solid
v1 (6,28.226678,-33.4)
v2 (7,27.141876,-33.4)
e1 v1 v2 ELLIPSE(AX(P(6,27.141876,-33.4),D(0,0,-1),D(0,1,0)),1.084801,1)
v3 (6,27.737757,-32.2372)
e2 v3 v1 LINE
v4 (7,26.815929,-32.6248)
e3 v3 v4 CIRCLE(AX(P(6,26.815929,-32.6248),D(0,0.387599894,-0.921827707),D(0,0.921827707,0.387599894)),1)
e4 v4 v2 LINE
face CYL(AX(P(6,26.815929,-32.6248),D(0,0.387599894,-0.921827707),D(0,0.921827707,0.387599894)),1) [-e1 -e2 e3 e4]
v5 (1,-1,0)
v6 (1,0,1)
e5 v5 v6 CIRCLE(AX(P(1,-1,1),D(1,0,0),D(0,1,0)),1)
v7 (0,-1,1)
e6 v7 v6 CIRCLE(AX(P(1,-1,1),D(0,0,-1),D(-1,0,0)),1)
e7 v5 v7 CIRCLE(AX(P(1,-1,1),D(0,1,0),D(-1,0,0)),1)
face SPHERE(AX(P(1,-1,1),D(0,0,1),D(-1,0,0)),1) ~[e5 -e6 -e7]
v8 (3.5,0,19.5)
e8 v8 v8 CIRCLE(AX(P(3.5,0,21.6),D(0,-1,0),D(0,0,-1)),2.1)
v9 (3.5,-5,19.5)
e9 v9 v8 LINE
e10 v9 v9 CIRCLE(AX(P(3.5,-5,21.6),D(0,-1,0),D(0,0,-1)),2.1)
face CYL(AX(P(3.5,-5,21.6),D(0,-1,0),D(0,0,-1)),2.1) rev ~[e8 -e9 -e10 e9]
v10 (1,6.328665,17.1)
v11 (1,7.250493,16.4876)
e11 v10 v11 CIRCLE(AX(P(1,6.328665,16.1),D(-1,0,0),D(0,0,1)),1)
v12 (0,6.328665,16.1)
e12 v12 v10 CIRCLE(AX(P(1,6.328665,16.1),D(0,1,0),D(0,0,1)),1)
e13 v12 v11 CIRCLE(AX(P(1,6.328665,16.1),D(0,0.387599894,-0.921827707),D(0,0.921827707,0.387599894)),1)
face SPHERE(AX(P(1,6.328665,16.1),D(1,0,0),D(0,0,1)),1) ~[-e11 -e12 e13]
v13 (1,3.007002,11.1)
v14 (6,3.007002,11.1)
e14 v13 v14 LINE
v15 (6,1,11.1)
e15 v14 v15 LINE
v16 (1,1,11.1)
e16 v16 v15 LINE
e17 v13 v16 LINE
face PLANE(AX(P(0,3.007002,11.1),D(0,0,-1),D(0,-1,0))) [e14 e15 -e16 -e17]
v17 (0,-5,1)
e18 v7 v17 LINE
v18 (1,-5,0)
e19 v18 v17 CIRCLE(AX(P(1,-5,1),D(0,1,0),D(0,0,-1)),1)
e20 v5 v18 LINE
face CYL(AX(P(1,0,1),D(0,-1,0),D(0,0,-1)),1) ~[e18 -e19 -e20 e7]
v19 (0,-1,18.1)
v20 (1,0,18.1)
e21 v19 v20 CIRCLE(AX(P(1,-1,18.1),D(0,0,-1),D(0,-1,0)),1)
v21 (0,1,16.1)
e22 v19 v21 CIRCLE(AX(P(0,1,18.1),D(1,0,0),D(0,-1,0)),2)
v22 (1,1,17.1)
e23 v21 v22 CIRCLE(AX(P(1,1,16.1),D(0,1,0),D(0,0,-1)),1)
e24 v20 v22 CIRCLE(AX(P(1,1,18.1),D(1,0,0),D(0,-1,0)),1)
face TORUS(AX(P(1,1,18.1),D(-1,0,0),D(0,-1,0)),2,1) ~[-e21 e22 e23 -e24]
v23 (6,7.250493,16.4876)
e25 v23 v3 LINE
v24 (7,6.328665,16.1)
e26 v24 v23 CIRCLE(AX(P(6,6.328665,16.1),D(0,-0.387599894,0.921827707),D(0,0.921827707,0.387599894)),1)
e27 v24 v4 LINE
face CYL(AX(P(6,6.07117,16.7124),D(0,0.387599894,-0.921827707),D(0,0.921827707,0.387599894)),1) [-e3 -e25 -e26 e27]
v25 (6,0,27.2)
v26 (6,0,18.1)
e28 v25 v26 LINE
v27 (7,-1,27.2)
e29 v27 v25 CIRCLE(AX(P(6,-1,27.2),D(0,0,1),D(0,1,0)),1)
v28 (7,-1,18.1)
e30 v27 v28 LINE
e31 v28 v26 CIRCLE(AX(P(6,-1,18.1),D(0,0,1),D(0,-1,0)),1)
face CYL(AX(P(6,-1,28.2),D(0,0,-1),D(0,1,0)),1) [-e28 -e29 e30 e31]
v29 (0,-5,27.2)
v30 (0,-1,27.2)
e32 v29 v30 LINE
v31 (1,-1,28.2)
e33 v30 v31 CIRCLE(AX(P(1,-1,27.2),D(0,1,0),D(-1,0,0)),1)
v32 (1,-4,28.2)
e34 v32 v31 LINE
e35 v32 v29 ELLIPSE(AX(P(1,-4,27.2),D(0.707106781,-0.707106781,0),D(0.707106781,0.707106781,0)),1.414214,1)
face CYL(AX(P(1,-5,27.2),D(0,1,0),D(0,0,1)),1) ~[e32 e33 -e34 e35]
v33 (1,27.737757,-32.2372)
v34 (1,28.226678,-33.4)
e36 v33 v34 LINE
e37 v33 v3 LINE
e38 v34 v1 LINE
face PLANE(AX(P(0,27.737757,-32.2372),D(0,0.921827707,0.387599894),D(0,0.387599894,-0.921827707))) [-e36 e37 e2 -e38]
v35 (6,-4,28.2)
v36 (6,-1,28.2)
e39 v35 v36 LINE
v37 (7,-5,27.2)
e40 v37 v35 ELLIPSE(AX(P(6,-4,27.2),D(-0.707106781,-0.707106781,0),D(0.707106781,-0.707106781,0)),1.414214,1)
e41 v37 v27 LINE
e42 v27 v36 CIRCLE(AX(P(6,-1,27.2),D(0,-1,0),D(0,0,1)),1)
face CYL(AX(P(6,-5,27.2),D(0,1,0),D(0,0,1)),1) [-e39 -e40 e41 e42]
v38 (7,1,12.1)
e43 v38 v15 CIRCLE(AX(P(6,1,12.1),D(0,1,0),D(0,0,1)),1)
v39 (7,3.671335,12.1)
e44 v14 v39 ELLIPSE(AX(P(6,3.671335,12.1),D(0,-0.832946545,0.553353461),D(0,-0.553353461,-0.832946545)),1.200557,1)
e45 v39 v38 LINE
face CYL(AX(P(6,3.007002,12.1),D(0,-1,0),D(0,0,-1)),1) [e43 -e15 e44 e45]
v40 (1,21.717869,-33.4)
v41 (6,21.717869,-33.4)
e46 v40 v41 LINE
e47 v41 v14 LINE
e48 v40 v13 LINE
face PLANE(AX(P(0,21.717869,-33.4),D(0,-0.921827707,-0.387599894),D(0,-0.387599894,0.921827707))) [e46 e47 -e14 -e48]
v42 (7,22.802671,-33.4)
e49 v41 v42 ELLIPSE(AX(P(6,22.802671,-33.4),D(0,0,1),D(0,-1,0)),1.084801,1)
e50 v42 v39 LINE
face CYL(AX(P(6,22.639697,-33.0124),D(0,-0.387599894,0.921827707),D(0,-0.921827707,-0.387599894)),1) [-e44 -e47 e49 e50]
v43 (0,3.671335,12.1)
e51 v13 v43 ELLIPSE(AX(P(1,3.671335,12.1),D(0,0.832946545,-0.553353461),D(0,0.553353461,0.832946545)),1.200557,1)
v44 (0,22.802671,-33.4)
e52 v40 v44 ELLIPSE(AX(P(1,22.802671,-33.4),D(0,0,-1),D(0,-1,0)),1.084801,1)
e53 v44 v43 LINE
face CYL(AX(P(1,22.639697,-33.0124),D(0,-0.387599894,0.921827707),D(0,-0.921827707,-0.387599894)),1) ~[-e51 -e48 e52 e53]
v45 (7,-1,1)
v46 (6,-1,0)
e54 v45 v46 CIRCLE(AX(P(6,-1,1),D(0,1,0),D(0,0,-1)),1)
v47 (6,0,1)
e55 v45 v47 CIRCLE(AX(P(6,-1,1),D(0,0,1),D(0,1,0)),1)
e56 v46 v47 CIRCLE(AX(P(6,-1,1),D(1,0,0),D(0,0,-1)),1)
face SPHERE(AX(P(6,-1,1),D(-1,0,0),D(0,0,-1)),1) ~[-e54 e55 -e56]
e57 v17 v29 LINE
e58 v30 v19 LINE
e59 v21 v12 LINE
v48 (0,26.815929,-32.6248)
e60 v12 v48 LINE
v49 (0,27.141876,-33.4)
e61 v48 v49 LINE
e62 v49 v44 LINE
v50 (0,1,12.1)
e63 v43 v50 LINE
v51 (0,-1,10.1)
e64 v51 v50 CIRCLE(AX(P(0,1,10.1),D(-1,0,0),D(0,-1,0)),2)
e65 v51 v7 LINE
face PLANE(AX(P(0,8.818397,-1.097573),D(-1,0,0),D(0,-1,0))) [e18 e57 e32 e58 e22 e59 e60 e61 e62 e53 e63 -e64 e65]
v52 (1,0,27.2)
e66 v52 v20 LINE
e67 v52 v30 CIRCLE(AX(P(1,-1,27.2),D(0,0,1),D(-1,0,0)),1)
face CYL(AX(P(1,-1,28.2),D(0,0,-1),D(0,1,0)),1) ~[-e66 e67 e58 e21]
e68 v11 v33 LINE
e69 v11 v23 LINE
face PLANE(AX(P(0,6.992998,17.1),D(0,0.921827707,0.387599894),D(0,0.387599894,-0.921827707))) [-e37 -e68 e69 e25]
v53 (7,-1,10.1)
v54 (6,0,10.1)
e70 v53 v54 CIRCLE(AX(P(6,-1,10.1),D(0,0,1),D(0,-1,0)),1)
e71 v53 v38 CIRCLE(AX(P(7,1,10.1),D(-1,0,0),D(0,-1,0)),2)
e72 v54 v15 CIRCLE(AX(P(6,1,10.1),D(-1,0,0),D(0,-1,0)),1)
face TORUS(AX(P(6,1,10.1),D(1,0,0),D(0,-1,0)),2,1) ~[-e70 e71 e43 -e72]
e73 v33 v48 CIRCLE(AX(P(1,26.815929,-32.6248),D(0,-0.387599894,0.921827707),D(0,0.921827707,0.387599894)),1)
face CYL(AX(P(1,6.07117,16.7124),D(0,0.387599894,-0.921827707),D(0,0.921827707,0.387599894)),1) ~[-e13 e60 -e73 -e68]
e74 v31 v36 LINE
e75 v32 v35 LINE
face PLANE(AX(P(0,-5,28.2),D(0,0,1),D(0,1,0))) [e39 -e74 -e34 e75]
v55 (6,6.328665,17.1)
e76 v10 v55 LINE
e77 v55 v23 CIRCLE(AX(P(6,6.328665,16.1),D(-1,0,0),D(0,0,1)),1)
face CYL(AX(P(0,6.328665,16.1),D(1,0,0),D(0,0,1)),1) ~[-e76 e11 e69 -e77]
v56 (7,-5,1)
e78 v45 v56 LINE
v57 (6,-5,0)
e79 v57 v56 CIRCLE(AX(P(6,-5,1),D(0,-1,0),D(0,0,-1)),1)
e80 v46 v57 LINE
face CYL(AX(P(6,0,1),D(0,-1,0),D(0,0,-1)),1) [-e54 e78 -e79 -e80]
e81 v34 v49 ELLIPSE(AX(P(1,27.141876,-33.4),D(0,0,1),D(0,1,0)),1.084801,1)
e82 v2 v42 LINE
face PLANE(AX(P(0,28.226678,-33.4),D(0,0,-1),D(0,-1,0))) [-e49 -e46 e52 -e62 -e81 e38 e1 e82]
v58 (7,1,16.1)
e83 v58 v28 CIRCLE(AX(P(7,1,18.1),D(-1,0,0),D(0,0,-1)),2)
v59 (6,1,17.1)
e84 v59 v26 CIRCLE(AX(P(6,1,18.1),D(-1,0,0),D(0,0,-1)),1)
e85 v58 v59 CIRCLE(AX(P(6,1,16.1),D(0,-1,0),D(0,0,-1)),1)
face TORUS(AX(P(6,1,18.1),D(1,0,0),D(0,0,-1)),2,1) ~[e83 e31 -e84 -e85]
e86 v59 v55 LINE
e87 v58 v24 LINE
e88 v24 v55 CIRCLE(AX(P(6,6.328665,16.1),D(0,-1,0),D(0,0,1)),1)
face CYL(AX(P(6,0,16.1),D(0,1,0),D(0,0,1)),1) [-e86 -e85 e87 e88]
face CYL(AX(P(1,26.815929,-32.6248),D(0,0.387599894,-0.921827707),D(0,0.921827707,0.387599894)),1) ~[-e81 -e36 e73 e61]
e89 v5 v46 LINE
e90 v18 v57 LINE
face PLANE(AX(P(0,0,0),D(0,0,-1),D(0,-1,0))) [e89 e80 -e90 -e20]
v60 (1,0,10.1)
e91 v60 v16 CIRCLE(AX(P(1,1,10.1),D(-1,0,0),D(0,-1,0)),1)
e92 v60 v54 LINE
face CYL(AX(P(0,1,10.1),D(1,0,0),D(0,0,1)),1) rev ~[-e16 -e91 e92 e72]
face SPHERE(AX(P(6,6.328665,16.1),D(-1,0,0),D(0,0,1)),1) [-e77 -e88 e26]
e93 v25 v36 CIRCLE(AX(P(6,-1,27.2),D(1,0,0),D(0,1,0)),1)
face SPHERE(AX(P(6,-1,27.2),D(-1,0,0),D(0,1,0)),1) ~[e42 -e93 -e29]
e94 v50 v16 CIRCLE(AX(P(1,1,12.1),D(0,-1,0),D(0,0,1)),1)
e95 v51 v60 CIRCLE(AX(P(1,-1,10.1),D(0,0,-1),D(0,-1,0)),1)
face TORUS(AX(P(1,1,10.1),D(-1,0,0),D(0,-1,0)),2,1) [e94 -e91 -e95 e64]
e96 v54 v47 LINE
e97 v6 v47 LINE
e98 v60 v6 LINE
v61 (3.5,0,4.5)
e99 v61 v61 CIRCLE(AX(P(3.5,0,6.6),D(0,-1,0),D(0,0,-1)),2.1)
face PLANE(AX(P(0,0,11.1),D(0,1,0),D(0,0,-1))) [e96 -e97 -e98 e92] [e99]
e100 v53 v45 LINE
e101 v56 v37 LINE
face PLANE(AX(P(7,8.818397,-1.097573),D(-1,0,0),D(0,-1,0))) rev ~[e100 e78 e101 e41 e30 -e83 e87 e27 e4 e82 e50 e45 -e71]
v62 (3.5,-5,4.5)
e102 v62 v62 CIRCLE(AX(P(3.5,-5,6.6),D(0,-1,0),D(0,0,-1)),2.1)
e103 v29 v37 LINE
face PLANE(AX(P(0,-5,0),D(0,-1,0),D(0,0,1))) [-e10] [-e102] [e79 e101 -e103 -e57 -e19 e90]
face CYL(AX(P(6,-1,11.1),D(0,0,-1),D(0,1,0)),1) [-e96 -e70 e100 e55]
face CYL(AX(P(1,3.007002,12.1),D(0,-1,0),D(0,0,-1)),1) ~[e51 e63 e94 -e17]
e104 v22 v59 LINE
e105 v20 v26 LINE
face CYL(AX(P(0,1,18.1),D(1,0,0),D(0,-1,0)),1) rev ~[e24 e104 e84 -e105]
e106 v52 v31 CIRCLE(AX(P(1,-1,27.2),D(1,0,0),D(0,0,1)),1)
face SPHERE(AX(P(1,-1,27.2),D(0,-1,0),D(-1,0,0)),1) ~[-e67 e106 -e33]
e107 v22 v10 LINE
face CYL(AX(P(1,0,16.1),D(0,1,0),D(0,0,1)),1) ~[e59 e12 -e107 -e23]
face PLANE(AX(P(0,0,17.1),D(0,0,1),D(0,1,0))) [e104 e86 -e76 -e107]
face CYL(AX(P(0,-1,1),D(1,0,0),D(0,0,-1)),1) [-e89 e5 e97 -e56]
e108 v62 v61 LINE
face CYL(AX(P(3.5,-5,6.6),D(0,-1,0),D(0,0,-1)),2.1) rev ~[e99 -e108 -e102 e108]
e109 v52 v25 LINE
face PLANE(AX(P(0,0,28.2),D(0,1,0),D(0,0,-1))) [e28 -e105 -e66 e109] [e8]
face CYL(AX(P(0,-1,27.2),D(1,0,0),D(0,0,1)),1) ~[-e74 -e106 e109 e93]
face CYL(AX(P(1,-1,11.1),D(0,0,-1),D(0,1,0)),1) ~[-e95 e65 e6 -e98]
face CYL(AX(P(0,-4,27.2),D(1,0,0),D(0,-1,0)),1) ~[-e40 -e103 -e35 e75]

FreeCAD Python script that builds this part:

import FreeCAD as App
import Part
import Sketcher

V = App.Vector


def edges_at(feature, points):
    """Names of the edges that pass closest to the given points."""
    edges = feature.Shape.Edges
    near = lambda p: min(range(len(edges)), key=lambda i: edges[i].distToShape(Part.Vertex(*p))[0])
    return sorted({f"Edge{near(p) + 1}" for p in points})

doc = App.newDocument("Part")
body = doc.addObject("PartDesign::Body", "Body")

# Sketch on YZ plane
sketch1 = doc.addObject("Sketcher::SketchObject", "Sketch")
body.addObject(sketch1)
sketch1.AttachmentSupport = (doc.YZ_Plane, [""])
sketch1.MapMode = "FlatFace"
sketch1.addGeometry(Part.LineSegment(V(-5, 0, 0), V(0, 0, 0)), False)
sketch1.addGeometry(Part.LineSegment(V(0, 0, 0), V(0, 11.1, 0)), False)
sketch1.addGeometry(Part.LineSegment(V(0, 11.1, 0), V(3, 11.1, 0)), False)
sketch1.addGeometry(Part.LineSegment(V(3, 11.1, 0), V(21.7, -33.4, 0)), False)
sketch1.addGeometry(Part.LineSegment(V(21.7, -33.4, 0), V(28.2, -33.4, 0)), False)
sketch1.addGeometry(Part.LineSegment(V(28.2, -33.4, 0), V(27.7, -32.2, 0)), False)
sketch1.addGeometry(Part.LineSegment(V(27.7, -32.2, 0), V(7, 17.1, 0)), False)
sketch1.addGeometry(Part.LineSegment(V(7, 17.1, 0), V(0, 17.1, 0)), False)
sketch1.addGeometry(Part.LineSegment(V(0, 17.1, 0), V(0, 28.2, 0)), False)
sketch1.addGeometry(Part.LineSegment(V(0, 28.2, 0), V(-5, 28.2, 0)), False)
sketch1.addGeometry(Part.LineSegment(V(-5, 28.2, 0), V(-5, 0, 0)), False)
sketch1.addConstraint(Sketcher.Constraint("Coincident", 0, 2, 1, 1))
sketch1.addConstraint(Sketcher.Constraint("Coincident", 1, 2, 2, 1))
sketch1.addConstraint(Sketcher.Constraint("Coincident", 2, 2, 3, 1))
sketch1.addConstraint(Sketcher.Constraint("Coincident", 3, 2, 4, 1))
sketch1.addConstraint(Sketcher.Constraint("Coincident", 4, 2, 5, 1))
sketch1.addConstraint(Sketcher.Constraint("Coincident", 5, 2, 6, 1))
sketch1.addConstraint(Sketcher.Constraint("Coincident", 6, 2, 7, 1))
sketch1.addConstraint(Sketcher.Constraint("Coincident", 7, 2, 8, 1))
sketch1.addConstraint(Sketcher.Constraint("Coincident", 8, 2, 9, 1))
sketch1.addConstraint(Sketcher.Constraint("Coincident", 9, 2, 10, 1))
sketch1.addConstraint(Sketcher.Constraint("Coincident", 10, 2, 0, 1))
sketch1.addConstraint(Sketcher.Constraint("Horizontal", 0))
sketch1.addConstraint(Sketcher.Constraint("Vertical", 1))
sketch1.addConstraint(Sketcher.Constraint("Horizontal", 2))
sketch1.addConstraint(Sketcher.Constraint("Horizontal", 4))
sketch1.addConstraint(Sketcher.Constraint("Horizontal", 7))
sketch1.addConstraint(Sketcher.Constraint("Vertical", 8))
sketch1.addConstraint(Sketcher.Constraint("Horizontal", 9))
sketch1.addConstraint(Sketcher.Constraint("Vertical", 10))
sketch1.addConstraint(Sketcher.Constraint("Coincident", 0, 2, -1, 1))
sketch1.addConstraint(Sketcher.Constraint("PointOnObject", 7, 2, -2))
sketch1.addConstraint(Sketcher.Constraint("Parallel", 3, 5))
sketch1.addConstraint(Sketcher.Constraint("Parallel", 5, 6))
sketch1.addConstraint(Sketcher.Constraint("Equal", 1, 8))
sketch1.addConstraint(Sketcher.Constraint("DistanceX", 0, 1, 0, 2, 5.0))
sketch1.addConstraint(Sketcher.Constraint("DistanceY", 1, 1, 1, 2, 11.1))
sketch1.addConstraint(Sketcher.Constraint("DistanceY", 10, 2, 10, 1, 28.2))
sketch1.addConstraint(Sketcher.Constraint("DistanceY", 3, 2, -1, 1, 33.4))
sketch1.addConstraint(Sketcher.Constraint("DistanceX", 4, 1, 4, 2, 6.508808))
sketch1.addConstraint(Sketcher.Constraint("DistanceY", 5, 2, -1, 1, 32.2372))
sketch1.addConstraint(Sketcher.Constraint("DistanceX", 2, 1, 2, 2, 3.007002))
sketch1.addConstraint(Sketcher.Constraint("DistanceX", 7, 2, 7, 1, 6.992998))
pad1 = doc.addObject("PartDesign::Pad", "Pad")
body.addObject(pad1)
pad1.Profile = sketch1
pad1.Length = 7
doc.recompute()

fillet = doc.addObject("PartDesign::Fillet", "Fillet")
body.addObject(fillet)
fillet.Base = (pad1, edges_at(pad1, [
    (0, 0, 5.55),
    (0, -2.5, 0),
    (0, -2.5, 28.2),
    (0, 0, 22.65),
    (0, 3.496, 17.1),
    (0, 17.365, -7.569),
    (0, 12.362, -11.15),
    (0, 1.504, 11.1),
    (7, 17.365, -7.569),
    (3.5, 0, 11.1),
    (3.5, 0, 0),
    (3.5, -5, 28.2),
    (3.5, 0, 28.2),
    (3.5, 0, 17.1),
    (3.5, 6.993, 17.1),
    (7, 3.496, 17.1),
    (7, 0, 22.65),
    (7, -2.5, 28.2),
    (7, -2.5, 0),
    (7, 0, 5.55),
    (7, 1.504, 11.1),
    (7, 12.362, -11.15),
]))
fillet.Radius = 1

# Sketch on XZ plane
sketch2 = doc.addObject("Sketcher::SketchObject", "Sketch001")
body.addObject(sketch2)
sketch2.AttachmentSupport = (doc.XZ_Plane, [""])
sketch2.MapMode = "FlatFace"
sketch2.AttachmentOffset = App.Placement(V(0, 0, 5), App.Rotation())
sketch2.addGeometry(Part.Circle(V(3.5, 21.6, 0), V(0, 0, 1), 2.1), False)
sketch2.addGeometry(Part.Circle(V(3.5, 6.6, 0), V(0, 0, 1), 2.1), False)
sketch2.addConstraint(Sketcher.Constraint("Equal", 0, 1))
sketch2.addConstraint(Sketcher.Constraint("Vertical", 0, 3, 1, 3))
sketch2.addConstraint(Sketcher.Constraint("Diameter", 0, 4.2))
sketch2.addConstraint(Sketcher.Constraint("DistanceY", 1, 3, 0, 3, 15.0))
sketch2.addConstraint(Sketcher.Constraint("DistanceX", -1, 1, 0, 3, 3.5))
sketch2.addConstraint(Sketcher.Constraint("DistanceY", -1, 1, 0, 3, 21.6))
pocket1 = doc.addObject("PartDesign::Pocket", "Pocket")
body.addObject(pocket1)
pocket1.Profile = sketch2
pocket1.Length = 7

doc.recompute()
